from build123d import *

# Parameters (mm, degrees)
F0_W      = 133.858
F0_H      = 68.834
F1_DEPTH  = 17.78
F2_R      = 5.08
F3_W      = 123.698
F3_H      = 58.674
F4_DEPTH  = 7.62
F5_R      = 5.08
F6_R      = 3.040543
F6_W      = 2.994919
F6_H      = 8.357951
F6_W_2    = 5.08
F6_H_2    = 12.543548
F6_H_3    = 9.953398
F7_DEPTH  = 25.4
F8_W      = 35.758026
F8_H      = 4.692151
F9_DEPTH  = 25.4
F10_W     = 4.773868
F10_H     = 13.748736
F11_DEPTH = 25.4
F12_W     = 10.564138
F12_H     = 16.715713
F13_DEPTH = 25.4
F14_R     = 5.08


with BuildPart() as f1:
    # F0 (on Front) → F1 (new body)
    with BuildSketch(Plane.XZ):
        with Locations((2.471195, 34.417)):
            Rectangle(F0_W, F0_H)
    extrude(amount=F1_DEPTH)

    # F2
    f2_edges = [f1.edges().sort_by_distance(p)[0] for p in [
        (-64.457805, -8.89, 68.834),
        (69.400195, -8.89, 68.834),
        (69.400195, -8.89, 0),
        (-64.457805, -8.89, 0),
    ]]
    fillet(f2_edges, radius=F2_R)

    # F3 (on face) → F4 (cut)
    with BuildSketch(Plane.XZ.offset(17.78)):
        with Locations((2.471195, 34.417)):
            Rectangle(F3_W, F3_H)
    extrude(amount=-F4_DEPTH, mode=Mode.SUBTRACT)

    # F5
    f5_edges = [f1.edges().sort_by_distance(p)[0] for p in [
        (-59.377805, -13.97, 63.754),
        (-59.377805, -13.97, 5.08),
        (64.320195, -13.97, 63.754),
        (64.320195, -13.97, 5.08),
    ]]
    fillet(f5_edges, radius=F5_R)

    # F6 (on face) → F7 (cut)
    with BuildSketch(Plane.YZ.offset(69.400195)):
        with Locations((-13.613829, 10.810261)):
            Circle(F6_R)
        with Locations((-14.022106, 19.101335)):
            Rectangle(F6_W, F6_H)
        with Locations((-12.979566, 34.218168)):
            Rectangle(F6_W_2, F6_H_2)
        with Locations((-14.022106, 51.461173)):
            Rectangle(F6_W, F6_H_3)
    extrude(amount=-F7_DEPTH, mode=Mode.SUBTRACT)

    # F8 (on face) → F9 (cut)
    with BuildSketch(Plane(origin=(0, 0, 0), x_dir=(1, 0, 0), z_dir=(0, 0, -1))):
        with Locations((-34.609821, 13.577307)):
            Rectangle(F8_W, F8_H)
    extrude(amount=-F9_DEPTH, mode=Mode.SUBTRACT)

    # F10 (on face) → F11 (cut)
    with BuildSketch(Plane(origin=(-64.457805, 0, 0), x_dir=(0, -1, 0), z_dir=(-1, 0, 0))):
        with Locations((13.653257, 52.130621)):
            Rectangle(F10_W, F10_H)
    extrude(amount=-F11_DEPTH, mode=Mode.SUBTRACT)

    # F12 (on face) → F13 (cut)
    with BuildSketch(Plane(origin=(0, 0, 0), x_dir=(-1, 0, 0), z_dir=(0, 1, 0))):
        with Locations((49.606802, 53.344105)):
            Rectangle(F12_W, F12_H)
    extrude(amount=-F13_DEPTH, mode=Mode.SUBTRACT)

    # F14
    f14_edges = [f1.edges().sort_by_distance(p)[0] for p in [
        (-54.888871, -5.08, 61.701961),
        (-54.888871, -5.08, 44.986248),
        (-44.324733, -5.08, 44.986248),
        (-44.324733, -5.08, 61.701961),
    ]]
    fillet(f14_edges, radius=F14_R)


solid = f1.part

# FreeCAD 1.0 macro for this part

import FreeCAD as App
import Part
import Sketcher

V = App.Vector
Q = App.Units.Quantity


def edges_at(feature, points):
    """Names of the edges that pass closest to the given points."""
    edges = feature.Shape.Edges
    near = lambda p: min(range(len(edges)), key=lambda i: edges[i].distToShape(Part.Vertex(*p))[0])
    return sorted({f"Edge{near(p) + 1}" for p in points})

doc = App.newDocument("Part")
body = doc.addObject("PartDesign::Body", "Body")

# Sketch on XZ plane
sketch1 = body.newObject("Sketcher::SketchObject", "Sketch")
sketch1.AttachmentSupport = (doc.getObject("XZ_Plane"), [""])
sketch1.MapMode = "FlatFace"
sketch1.addGeometry([
    Part.LineSegment(V(-64.457805, 68.834, 0), V(-64.457805, 0, 0)),
    Part.LineSegment(V(-64.457805, 0, 0), V(69.400195, 0, 0)),
    Part.LineSegment(V(69.400195, 0, 0), V(69.400195, 68.834, 0)),
    Part.LineSegment(V(69.400195, 68.834, 0), V(-64.457805, 68.834, 0)),
], False)
sketch1.addConstraint([
    Sketcher.Constraint("Coincident", 0, 2, 1, 1),
    Sketcher.Constraint("Coincident", 1, 2, 2, 1),
    Sketcher.Constraint("Coincident", 2, 2, 3, 1),
    Sketcher.Constraint("Coincident", 3, 2, 0, 1),
    Sketcher.Constraint("Vertical", 0),
    Sketcher.Constraint("Horizontal", 1),
    Sketcher.Constraint("Vertical", 2),
    Sketcher.Constraint("Horizontal", 3),
    Sketcher.Constraint("PointOnObject", 0, 2, -1),
    Sketcher.Constraint("DistanceX", 1, 1, 1, 2, Q("5.27 in")),
    Sketcher.Constraint("DistanceY", 0, 2, 0, 1, Q("2.71 in")),
    Sketcher.Constraint("DistanceX", 0, 2, -1, 1, 64.457805),
])
pad1 = body.newObject("PartDesign::Pad", "Pad")
pad1.Profile = sketch1
pad1.Length = Q("0.7 in")
doc.recompute()

fillet = body.newObject("PartDesign::Fillet", "Fillet")
fillet.Base = (pad1, edges_at(pad1, [
    (-64.458, -8.89, 68.834),
    (69.4, -8.89, 68.834),
    (69.4, -8.89, 0),
    (-64.458, -8.89, 0),
]))
fillet.Radius = Q("0.2 in")

# Sketch on XZ plane
sketch2 = body.newObject("Sketcher::SketchObject", "Sketch001")
sketch2.AttachmentSupport = (doc.getObject("XZ_Plane"), [""])
sketch2.MapMode = "FlatFace"
sketch2.AttachmentOffset = App.Placement(V(0, 0, 0.7 * 25.4), App.Rotation())
sketch2.addGeometry([
    Part.LineSegment(V(-59.377805, 63.754, 0), V(-59.377805, 5.08, 0)),
    Part.LineSegment(V(-59.377805, 5.08, 0), V(64.320195, 5.08, 0)),
    Part.LineSegment(V(64.320195, 5.08, 0), V(64.320195, 63.754, 0)),
    Part.LineSegment(V(64.320195, 63.754, 0), V(-59.377805, 63.754, 0)),
], False)
sketch2.addConstraint([
    Sketcher.Constraint("Coincident", 0, 2, 1, 1),
    Sketcher.Constraint("Coincident", 1, 2, 2, 1),
    Sketcher.Constraint("Coincident", 2, 2, 3, 1),
    Sketcher.Constraint("Coincident", 3, 2, 0, 1),
    Sketcher.Constraint("Vertical", 0),
    Sketcher.Constraint("Horizontal", 1),
    Sketcher.Constraint("Vertical", 2),
    Sketcher.Constraint("Horizontal", 3),
    Sketcher.Constraint("DistanceX", 1, 1, 1, 2, Q("4.87 in")),
    Sketcher.Constraint("DistanceY", 0, 2, 0, 1, Q("2.31 in")),
    Sketcher.Constraint("DistanceY", -1, 1, 0, 2, Q("0.2 in")),
    Sketcher.Constraint("DistanceX", 0, 2, -1, 1, 59.377805),
])
pocket1 = body.newObject("PartDesign::Pocket", "Pocket")
pocket1.Profile = sketch2
pocket1.Length = Q("0.3 in")
doc.recompute()

fillet2 = body.newObject("PartDesign::Fillet", "Fillet001")
fillet2.Base = (pocket1, edges_at(pocket1, [
    (-59.378, -13.97, 63.754),
    (-59.378, -13.97, 5.08),
    (64.32, -13.97, 63.754),
    (64.32, -13.97, 5.08),
]))
fillet2.Radius = Q("0.2 in")

# Sketch on YZ plane
sketch3 = body.newObject("Sketcher::SketchObject", "Sketch002")
sketch3.AttachmentSupport = (doc.getObject("YZ_Plane"), [""])
sketch3.MapMode = "FlatFace"
sketch3.AttachmentOffset = App.Placement(V(0, 0, 69.400195), App.Rotation())
sketch3.addGeometry([
    Part.Circle(V(-13.613829, 10.810261, 0), V(0, 0, 1), 3.040543),  # 0
    Part.LineSegment(V(-15.519566, 23.28031, 0), V(-15.519566, 14.92236, 0)),  # 1
    Part.LineSegment(V(-15.519566, 14.92236, 0), V(-12.524646, 14.92236, 0)),  # 2
    Part.LineSegment(V(-12.524646, 14.92236, 0), V(-12.524646, 23.28031, 0)),  # 3
    Part.LineSegment(V(-12.524646, 23.28031, 0), V(-15.519566, 23.28031, 0)),  # 4
    Part.LineSegment(V(-15.519566, 40.489942, 0), V(-15.519566, 27.946394, 0)),  # 5
    Part.LineSegment(V(-15.519566, 27.946394, 0), V(-10.439566, 27.946394, 0)),  # 6
    Part.LineSegment(V(-10.439566, 27.946394, 0), V(-10.439566, 40.489942, 0)),  # 7
    Part.LineSegment(V(-10.439566, 40.489942, 0), V(-15.519566, 40.489942, 0)),  # 8
    Part.LineSegment(V(-15.519566, 56.437872, 0), V(-15.519566, 46.484474, 0)),  # 9
    Part.LineSegment(V(-15.519566, 46.484474, 0), V(-12.524646, 46.484474, 0)),  # 10
    Part.LineSegment(V(-12.524646, 46.484474, 0), V(-12.524646, 56.437872, 0)),  # 11
    Part.LineSegment(V(-12.524646, 56.437872, 0), V(-15.519566, 56.437872, 0)),  # 12
], False)
sketch3.addConstraint([
    Sketcher.Constraint("Coincident", 1, 2, 2, 1),
    Sketcher.Constraint("Coincident", 2, 2, 3, 1),
    Sketcher.Constraint("Coincident", 3, 2, 4, 1),
    Sketcher.Constraint("Coincident", 4, 2, 1, 1),
    Sketcher.Constraint("Coincident", 5, 2, 6, 1),
    Sketcher.Constraint("Coincident", 6, 2, 7, 1),
    Sketcher.Constraint("Coincident", 7, 2, 8, 1),
    Sketcher.Constraint("Coincident", 8, 2, 5, 1),
    Sketcher.Constraint("Coincident", 9, 2, 10, 1),
    Sketcher.Constraint("Coincident", 10, 2, 11, 1),
    Sketcher.Constraint("Coincident", 11, 2, 12, 1),
    Sketcher.Constraint("Coincident", 12, 2, 9, 1),
    Sketcher.Constraint("Vertical", 1),
    Sketcher.Constraint("Horizontal", 2),
    Sketcher.Constraint("Vertical", 3),
    Sketcher.Constraint("Horizontal", 4),
    Sketcher.Constraint("Vertical", 5),
    Sketcher.Constraint("Horizontal", 6),
    Sketcher.Constraint("Vertical", 7),
    Sketcher.Constraint("Horizontal", 8),
    Sketcher.Constraint("Vertical", 9),
    Sketcher.Constraint("Horizontal", 10),
    Sketcher.Constraint("Vertical", 11),
    Sketcher.Constraint("Horizontal", 12),
    Sketcher.Constraint("Vertical", 4, 2, 5, 2),
    Sketcher.Constraint("Vertical", 8, 2, 9, 2),
    Sketcher.Constraint("Vertical", 3, 2, 10, 2),
    Sketcher.Constraint("DistanceX", 6, 1, 6, 2, Q("0.2 in")),
    Sketcher.Constraint("Diameter", 0, 6.081086),
    Sketcher.Constraint("DistanceX", 2, 1, 2, 2, 2.994919),
    Sketcher.Constraint("DistanceY", 1, 2, 1, 1, 8.357951),
    Sketcher.Constraint("DistanceY", 0, 3, 1, 2, 4.112099),
    Sketcher.Constraint("DistanceY", 5, 2, 5, 1, 12.543548),
    Sketcher.Constraint("DistanceY", 9, 2, 9, 1, 9.953398),
    Sketcher.Constraint("DistanceX", 0, 3, -1, 1, 13.613829),
    Sketcher.Constraint("DistanceY", -1, 1, 0, 3, 10.810261),
    Sketcher.Constraint("DistanceY", 3, 2, 7, 2, 17.209632),
    Sketcher.Constraint("DistanceY", 8, 2, 9, 2, 5.994532),
    Sketcher.Constraint("DistanceX", 1, 2, -1, 1, 15.519566),
])
pocket2 = body.newObject("PartDesign::Pocket", "Pocket001")
pocket2.Profile = sketch3
pocket2.Length = Q("1 in")

# Sketch on XY plane
sketch4 = body.newObject("Sketcher::SketchObject", "Sketch003")
sketch4.AttachmentSupport = (doc.getObject("XY_Plane"), [""])
sketch4.MapMode = "FlatFace"
sketch4.addGeometry([
    Part.LineSegment(V(-52.488834, -15.923383, 0), V(-52.488834, -11.231231, 0)),
    Part.LineSegment(V(-52.488834, -11.231231, 0), V(-16.730808, -11.231231, 0)),
    Part.LineSegment(V(-16.730808, -11.231231, 0), V(-16.730808, -15.923383, 0)),
    Part.LineSegment(V(-16.730808, -15.923383, 0), V(-52.488834, -15.923383, 0)),
], False)
sketch4.addConstraint([
    Sketcher.Constraint("Coincident", 0, 2, 1, 1),
    Sketcher.Constraint("Coincident", 1, 2, 2, 1),
    Sketcher.Constraint("Coincident", 2, 2, 3, 1),
    Sketcher.Constraint("Coincident", 3, 2, 0, 1),
    Sketcher.Constraint("Vertical", 0),
    Sketcher.Constraint("Horizontal", 1),
    Sketcher.Constraint("Vertical", 2),
    Sketcher.Constraint("Horizontal", 3),
    Sketcher.Constraint("DistanceY", 0, 1, 0, 2, 4.692151),
    Sketcher.Constraint("DistanceX", 1, 1, 1, 2, 35.758026),
    Sketcher.Constraint("DistanceY", 0, 2, -1, 1, 11.231231),
    Sketcher.Constraint("DistanceX", 0, 2, -1, 1, 52.488834),
])
pocket3 = body.newObject("PartDesign::Pocket", "Pocket002")
pocket3.Profile = sketch4
pocket3.Length = Q("1 in")
pocket3.Reversed = True

# Sketch on YZ plane
sketch5 = body.newObject("Sketcher::SketchObject", "Sketch004")
sketch5.AttachmentSupport = (doc.getObject("YZ_Plane"), [""])
sketch5.MapMode = "FlatFace"
sketch5.AttachmentOffset = App.Placement(V(0, 0, -64.457805), App.Rotation())
sketch5.addGeometry([
    Part.LineSegment(V(-11.266323, 59.004989, 0), V(-11.266323, 45.256253, 0)),
    Part.LineSegment(V(-11.266323, 45.256253, 0), V(-16.040191, 45.256253, 0)),
    Part.LineSegment(V(-16.040191, 45.256253, 0), V(-16.040191, 59.004989, 0)),
    Part.LineSegment(V(-16.040191, 59.004989, 0), V(-11.266323, 59.004989, 0)),
], False)
sketch5.addConstraint([
    Sketcher.Constraint("Coincident", 0, 2, 1, 1),
    Sketcher.Constraint("Coincident", 1, 2, 2, 1),
    Sketcher.Constraint("Coincident", 2, 2, 3, 1),
    Sketcher.Constraint("Coincident", 3, 2, 0, 1),
    Sketcher.Constraint("Vertical", 0),
    Sketcher.Constraint("Horizontal", 1),
    Sketcher.Constraint("Vertical", 2),
    Sketcher.Constraint("Horizontal", 3),
    Sketcher.Constraint("DistanceX", 1, 2, 1, 1, 4.773868),
    Sketcher.Constraint("DistanceY", 0, 2, 0, 1, 13.748736),
    Sketcher.Constraint("DistanceX", 1, 2, -1, 1, 16.040191),
    Sketcher.Constraint("DistanceY", -1, 1, 2, 2, 59.004989),
])
pocket4 = body.newObject("PartDesign::Pocket", "Pocket003")
pocket4.Profile = sketch5
pocket4.Length = Q("1 in")
pocket4.Reversed = True

# Sketch on XZ plane
sketch6 = body.newObject("Sketcher::SketchObject", "Sketch005")
sketch6.AttachmentSupport = (doc.getObject("XZ_Plane"), [""])
sketch6.MapMode = "FlatFace"
sketch6.addGeometry([
    Part.LineSegment(V(-44.324733, 61.701962, 0), V(-44.324733, 44.986249, 0)),
    Part.LineSegment(V(-44.324733, 44.986249, 0), V(-54.888871, 44.986249, 0)),
    Part.LineSegment(V(-54.888871, 44.986249, 0), V(-54.888871, 61.701962, 0)),
    Part.LineSegment(V(-54.888871, 61.701962, 0), V(-44.324733, 61.701962, 0)),
], False)
sketch6.addConstraint([
    Sketcher.Constraint("Coincident", 0, 2, 1, 1),
    Sketcher.Constraint("Coincident", 1, 2, 2, 1),
    Sketcher.Constraint("Coincident", 2, 2, 3, 1),
    Sketcher.Constraint("Coincident", 3, 2, 0, 1),
    Sketcher.Constraint("Vertical", 0),
    Sketcher.Constraint("Horizontal", 1),
    Sketcher.Constraint("Vertical", 2),
    Sketcher.Constraint("Horizontal", 3),
    Sketcher.Constraint("DistanceX", 1, 2, 1, 1, 10.564138),
    Sketcher.Constraint("DistanceY", 0, 2, 0, 1, 16.715713),
    Sketcher.Constraint("DistanceY", -1, 1, 0, 2, 44.986249),
    Sketcher.Constraint("DistanceX", 1, 2, -1, 1, 54.888871),
])
pocket5 = body.newObject("PartDesign::Pocket", "Pocket004")
pocket5.Profile = sketch6
pocket5.Length = Q("1 in")
pocket5.Reversed = True
doc.recompute()

fillet3 = body.newObject("PartDesign::Fillet", "Fillet002")
fillet3.Base = (pocket5, edges_at(pocket5, [
    (-54.889, -5.08, 61.702),
    (-54.889, -5.08, 44.986),
    (-44.325, -5.08, 44.986),
    (-44.325, -5.08, 61.702),
]))
fillet3.Radius = Q("0.2 in")

doc.recompute()
